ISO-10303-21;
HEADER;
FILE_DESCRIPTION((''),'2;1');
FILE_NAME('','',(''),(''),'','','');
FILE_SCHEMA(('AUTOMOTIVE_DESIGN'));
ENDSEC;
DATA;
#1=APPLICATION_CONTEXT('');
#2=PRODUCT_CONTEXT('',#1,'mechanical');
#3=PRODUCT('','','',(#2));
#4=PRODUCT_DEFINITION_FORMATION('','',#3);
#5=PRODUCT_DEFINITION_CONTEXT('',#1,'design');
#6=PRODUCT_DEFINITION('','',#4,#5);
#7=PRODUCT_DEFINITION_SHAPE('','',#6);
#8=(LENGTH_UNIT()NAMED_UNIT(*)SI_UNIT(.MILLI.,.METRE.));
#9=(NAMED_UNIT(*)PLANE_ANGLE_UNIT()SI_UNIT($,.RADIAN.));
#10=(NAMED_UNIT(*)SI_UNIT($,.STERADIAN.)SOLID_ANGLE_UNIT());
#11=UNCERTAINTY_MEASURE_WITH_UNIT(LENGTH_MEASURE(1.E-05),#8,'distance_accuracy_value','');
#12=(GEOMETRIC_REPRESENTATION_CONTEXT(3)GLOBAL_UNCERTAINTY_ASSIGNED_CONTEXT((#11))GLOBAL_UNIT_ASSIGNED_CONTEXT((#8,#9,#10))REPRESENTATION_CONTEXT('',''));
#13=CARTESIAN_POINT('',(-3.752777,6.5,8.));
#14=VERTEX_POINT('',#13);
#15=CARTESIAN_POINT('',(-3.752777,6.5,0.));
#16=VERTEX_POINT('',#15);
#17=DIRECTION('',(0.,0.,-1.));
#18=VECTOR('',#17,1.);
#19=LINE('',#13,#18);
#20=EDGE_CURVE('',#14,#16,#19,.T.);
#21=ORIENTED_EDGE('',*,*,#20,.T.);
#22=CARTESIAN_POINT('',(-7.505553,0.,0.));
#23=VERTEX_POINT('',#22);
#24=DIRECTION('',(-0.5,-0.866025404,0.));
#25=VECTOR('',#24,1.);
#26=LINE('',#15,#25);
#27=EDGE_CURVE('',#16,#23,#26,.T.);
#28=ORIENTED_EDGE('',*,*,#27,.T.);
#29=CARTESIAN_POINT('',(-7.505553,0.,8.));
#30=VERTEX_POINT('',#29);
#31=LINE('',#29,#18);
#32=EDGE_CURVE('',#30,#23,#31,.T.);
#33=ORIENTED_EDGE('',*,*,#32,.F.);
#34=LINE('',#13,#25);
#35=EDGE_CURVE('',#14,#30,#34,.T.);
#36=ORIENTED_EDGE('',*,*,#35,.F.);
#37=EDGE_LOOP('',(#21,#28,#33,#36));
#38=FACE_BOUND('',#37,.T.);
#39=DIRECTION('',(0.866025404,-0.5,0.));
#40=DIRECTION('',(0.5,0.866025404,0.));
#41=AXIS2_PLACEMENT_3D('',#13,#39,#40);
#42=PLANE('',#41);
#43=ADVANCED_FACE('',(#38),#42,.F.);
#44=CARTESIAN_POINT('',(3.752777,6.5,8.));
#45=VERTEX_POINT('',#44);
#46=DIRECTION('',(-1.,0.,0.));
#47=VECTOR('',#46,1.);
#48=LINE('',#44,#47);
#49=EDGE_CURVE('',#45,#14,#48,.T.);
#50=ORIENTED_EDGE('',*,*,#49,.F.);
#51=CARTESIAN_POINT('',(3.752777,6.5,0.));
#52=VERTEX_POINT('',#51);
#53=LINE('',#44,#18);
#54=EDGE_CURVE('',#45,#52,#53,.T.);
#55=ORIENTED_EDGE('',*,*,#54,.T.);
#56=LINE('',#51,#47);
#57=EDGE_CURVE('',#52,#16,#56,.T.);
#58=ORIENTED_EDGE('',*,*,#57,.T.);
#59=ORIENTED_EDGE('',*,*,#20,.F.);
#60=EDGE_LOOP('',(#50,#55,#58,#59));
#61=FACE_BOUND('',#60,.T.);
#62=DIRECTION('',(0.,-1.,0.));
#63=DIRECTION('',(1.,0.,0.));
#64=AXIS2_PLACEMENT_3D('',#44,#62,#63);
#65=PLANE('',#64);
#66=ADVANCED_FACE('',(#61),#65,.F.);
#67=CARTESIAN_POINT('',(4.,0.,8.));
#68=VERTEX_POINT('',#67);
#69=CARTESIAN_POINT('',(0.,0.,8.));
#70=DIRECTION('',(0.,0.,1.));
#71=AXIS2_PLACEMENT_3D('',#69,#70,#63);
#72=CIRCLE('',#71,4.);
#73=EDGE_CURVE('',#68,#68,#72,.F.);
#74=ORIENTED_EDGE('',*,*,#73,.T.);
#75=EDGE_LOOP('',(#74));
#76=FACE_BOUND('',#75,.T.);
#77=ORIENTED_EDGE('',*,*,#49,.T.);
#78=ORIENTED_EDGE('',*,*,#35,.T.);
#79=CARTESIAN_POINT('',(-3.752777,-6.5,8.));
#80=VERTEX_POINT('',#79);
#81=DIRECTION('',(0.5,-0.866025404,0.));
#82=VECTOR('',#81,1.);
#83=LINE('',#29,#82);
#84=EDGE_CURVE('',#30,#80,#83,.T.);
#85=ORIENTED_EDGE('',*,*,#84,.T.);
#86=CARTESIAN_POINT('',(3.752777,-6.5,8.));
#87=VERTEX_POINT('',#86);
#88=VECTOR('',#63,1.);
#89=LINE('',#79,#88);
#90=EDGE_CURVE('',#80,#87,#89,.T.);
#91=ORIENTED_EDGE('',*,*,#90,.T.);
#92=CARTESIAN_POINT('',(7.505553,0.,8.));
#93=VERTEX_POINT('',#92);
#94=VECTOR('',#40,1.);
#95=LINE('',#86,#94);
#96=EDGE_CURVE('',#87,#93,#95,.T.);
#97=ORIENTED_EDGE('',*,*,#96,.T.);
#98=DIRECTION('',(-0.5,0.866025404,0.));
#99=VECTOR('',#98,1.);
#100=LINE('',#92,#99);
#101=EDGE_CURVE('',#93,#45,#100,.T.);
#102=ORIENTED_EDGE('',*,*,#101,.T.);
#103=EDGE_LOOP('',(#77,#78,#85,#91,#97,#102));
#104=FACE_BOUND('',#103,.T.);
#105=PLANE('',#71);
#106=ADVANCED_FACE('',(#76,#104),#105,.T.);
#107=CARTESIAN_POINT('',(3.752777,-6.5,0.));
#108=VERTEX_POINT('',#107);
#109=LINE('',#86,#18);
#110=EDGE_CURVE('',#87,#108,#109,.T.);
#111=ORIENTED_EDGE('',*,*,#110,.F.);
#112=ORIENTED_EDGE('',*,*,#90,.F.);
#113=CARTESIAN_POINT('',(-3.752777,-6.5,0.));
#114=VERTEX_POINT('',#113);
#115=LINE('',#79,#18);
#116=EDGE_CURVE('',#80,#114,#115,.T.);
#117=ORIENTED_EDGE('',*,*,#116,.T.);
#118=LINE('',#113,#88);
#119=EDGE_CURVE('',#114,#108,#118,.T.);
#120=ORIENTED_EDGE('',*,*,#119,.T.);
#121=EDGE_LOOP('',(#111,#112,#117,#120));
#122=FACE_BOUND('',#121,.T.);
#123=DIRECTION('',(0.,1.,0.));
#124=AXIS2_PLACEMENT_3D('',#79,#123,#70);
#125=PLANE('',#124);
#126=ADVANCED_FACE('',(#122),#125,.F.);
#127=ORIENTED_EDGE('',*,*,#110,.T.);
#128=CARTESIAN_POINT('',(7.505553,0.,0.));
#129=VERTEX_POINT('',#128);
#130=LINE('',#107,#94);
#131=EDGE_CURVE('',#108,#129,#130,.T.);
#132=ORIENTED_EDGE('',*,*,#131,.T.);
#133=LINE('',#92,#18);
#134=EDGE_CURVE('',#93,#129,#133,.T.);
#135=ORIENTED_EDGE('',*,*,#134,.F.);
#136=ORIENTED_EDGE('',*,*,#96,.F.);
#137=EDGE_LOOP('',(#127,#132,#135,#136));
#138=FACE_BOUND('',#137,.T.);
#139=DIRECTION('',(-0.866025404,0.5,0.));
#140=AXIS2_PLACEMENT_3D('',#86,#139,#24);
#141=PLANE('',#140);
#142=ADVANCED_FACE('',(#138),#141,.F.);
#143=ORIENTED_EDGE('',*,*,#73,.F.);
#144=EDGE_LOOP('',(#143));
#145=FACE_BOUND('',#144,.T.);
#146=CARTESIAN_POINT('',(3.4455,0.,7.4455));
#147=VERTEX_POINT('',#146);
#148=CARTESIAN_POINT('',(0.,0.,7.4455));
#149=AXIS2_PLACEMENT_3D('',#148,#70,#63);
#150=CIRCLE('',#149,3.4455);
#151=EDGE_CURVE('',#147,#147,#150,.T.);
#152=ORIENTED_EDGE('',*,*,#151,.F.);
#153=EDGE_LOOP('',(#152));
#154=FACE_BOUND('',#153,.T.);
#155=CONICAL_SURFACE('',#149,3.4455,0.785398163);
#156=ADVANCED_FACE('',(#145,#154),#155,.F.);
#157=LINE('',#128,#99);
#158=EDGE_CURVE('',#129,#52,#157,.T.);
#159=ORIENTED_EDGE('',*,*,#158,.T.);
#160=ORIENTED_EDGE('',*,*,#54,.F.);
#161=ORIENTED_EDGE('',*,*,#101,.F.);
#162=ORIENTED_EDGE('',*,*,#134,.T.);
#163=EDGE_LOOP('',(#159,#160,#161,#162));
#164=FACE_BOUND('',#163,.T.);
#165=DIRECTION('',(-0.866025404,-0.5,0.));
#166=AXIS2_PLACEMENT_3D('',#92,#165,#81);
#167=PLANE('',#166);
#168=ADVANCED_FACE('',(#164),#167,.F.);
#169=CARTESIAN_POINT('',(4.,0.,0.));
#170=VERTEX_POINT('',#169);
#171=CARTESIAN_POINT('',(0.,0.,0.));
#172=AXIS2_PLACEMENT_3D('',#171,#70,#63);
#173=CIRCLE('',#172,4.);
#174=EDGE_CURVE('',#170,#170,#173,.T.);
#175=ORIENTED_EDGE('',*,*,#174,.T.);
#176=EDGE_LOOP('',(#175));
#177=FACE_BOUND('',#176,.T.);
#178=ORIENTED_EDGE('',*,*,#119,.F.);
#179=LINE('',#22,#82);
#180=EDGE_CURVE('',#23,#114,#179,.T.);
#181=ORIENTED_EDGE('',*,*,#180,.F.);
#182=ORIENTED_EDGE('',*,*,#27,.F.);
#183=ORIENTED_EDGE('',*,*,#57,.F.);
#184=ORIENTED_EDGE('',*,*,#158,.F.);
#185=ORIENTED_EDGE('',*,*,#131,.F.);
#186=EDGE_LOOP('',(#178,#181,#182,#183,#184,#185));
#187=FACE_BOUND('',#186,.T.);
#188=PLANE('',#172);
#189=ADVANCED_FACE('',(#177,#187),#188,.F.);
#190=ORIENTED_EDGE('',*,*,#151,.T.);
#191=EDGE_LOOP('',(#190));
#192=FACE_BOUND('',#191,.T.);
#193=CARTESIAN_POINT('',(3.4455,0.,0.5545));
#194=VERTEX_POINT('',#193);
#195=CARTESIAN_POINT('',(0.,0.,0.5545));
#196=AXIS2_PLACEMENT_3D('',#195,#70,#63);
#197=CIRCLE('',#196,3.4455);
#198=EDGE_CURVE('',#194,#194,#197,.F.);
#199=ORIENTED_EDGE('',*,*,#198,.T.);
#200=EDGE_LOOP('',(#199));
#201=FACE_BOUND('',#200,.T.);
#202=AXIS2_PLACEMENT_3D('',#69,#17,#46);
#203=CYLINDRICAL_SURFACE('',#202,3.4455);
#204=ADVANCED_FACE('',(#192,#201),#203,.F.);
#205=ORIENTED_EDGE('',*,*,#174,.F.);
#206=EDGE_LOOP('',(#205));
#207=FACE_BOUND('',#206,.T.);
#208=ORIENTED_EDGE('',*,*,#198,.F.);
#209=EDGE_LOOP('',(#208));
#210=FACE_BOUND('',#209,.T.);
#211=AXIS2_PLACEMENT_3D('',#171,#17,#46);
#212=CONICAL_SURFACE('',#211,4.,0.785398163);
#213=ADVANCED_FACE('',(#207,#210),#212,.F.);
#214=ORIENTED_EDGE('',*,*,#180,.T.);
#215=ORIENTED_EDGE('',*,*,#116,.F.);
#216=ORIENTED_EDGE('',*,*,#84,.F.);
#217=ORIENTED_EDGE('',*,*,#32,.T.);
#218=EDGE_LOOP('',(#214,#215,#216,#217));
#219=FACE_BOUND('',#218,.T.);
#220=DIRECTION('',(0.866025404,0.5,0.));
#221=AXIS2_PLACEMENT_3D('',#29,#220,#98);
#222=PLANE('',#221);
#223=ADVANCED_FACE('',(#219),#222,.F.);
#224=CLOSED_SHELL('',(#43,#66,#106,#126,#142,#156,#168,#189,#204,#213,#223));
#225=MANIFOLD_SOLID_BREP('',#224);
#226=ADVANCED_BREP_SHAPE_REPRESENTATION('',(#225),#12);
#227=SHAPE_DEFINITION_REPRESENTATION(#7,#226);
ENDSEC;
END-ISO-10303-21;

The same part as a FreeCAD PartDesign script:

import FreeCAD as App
import Part
import Sketcher
Q = App.Units.Quantity


def edges_at(feature, points):
    """Names of the edges that pass closest to the given points."""
    edges = feature.Shape.Edges
    near = lambda p: min(range(len(edges)), key=lambda i: edges[i].distToShape(Part.Vertex(*p))[0])
    return sorted({f"Edge{near(p) + 1}" for p in points})


def add_polygon(sketch, points):
    """Adds a closed chain of lines whose ends are joined by coincident constraints."""
    first, n = sketch.GeometryCount, len(points)
    for a, b in zip(points, points[1:] + points[:1]):
        sketch.addGeometry(Part.LineSegment(App.Vector(*a, 0), App.Vector(*b, 0)), False)
    for i in range(n):
        sketch.addConstraint(Sketcher.Constraint("Coincident", first + i, 2, first + (i + 1) % n, 1))

doc = App.newDocument("Part")
body = doc.addObject("PartDesign::Body", "Body")

# Sketch on XY plane
sketch1 = doc.addObject("Sketcher::SketchObject", "Sketch")
body.addObject(sketch1)
sketch1.AttachmentSupport = (doc.XY_Plane, [""])
sketch1.MapMode = "FlatFace"
add_polygon(sketch1, [(3.752777, 6.5), (-3.752777, 6.5), (-7.505553, 0), (-3.752777, -6.5), (3.752777, -6.5), (7.505553, 0)])  # lines 0-5
sketch1.addGeometry(Part.Circle(App.Vector(0, 0, 0), App.Vector(0, 0, 1), 3.4455), False)  # 6
sketch1.addConstraint(Sketcher.Constraint("Horizontal", 0))
sketch1.addConstraint(Sketcher.Constraint("Horizontal", 3))
sketch1.addConstraint(Sketcher.Constraint("Coincident", 6, 3, -1, 1))
sketch1.addConstraint(Sketcher.Constraint("Symmetric", 0, 2, 3, 2, -1, 1))
sketch1.addConstraint(Sketcher.Constraint("Symmetric", 1, 2, 4, 2, -1, 1))
sketch1.addConstraint(Sketcher.Constraint("PointOnObject", 1, 2, -1))
sketch1.addConstraint(Sketcher.Constraint("Parallel", 2, 5))
sketch1.addConstraint(Sketcher.Constraint("Vertical", 0, 2, 2, 2))
sketch1.addConstraint(Sketcher.Constraint("Angle", 1, Q("-120 deg")))
sketch1.addConstraint(Sketcher.Constraint("Diameter", 6, Q("6.891 mm")))
sketch1.addConstraint(Sketcher.Constraint("DistanceY", 2, 2, 0, 2, Q("13 mm")))
sketch1.addConstraint(Sketcher.Constraint("DistanceX", 0, 2, 0, 1, Q("7.505554 mm")))
pad1 = doc.addObject("PartDesign::Pad", "Pad")
body.addObject(pad1)
pad1.Profile = sketch1
pad1.Length = 8
doc.recompute()

chamfer = doc.addObject("PartDesign::Chamfer", "Chamfer")
body.addObject(chamfer)
chamfer.Base = (pad1, edges_at(pad1, [(-3.446, 0, 0), (-3.446, 0, 8)]))
chamfer.Size = 0.5545

doc.recompute()
